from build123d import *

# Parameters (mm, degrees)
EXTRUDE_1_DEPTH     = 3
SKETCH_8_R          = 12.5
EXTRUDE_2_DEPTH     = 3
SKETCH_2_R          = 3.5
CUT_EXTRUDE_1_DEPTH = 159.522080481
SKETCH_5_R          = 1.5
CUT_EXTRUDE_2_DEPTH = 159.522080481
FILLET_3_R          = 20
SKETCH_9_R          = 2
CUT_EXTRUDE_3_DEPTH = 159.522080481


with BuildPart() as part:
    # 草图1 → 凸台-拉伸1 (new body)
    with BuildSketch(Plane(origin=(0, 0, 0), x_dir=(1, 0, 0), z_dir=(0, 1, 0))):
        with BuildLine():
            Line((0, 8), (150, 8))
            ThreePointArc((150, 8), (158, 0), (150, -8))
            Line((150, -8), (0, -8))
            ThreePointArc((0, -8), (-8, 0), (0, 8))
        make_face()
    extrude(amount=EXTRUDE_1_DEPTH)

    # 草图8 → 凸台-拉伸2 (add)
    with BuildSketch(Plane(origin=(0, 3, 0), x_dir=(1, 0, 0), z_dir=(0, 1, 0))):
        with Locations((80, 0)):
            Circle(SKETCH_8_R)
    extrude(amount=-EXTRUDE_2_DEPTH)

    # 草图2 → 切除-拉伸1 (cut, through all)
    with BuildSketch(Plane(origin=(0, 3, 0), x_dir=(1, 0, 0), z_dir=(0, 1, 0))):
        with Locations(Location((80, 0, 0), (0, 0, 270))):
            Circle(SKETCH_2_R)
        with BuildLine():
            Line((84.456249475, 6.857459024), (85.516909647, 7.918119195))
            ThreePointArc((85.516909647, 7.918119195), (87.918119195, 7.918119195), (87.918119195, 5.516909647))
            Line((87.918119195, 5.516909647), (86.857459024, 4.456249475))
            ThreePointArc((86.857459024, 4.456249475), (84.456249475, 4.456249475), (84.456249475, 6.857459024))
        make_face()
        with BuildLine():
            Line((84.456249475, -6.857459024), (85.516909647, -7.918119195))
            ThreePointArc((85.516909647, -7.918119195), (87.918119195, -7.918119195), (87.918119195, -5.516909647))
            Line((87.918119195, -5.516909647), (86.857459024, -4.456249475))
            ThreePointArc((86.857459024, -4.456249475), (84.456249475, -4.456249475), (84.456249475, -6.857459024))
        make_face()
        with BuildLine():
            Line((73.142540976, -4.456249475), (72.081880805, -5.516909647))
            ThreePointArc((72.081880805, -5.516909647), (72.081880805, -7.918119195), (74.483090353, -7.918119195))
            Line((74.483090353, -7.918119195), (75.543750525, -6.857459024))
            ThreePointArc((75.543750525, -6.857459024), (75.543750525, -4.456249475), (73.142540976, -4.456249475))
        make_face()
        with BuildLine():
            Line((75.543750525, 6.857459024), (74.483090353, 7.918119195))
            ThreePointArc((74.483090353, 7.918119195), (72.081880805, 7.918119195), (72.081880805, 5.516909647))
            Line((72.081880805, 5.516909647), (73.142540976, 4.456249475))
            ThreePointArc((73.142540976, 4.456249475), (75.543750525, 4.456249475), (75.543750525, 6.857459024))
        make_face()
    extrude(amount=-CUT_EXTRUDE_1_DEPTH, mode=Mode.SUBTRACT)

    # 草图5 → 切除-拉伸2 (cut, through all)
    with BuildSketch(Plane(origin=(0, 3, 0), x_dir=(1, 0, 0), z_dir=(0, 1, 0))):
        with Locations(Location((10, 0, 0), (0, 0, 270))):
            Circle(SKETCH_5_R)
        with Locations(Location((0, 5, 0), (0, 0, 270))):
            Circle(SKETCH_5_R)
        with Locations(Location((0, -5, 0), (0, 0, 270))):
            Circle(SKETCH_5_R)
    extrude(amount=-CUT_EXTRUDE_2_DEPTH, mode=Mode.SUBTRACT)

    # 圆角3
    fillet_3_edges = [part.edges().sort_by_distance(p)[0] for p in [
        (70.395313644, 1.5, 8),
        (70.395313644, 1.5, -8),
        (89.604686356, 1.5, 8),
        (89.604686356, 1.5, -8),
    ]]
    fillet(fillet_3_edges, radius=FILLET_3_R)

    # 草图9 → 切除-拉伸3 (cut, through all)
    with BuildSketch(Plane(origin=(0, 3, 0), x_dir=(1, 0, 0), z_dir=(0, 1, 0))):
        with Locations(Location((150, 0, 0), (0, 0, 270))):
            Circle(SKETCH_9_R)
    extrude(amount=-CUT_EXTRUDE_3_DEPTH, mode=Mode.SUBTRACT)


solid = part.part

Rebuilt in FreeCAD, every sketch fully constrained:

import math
import FreeCAD as App
import Part
import Sketcher

V = App.Vector
Q = App.Units.Quantity


def edges_at(feature, points):
    """Names of the edges that pass closest to the given points."""
    edges = feature.Shape.Edges
    near = lambda p: min(range(len(edges)), key=lambda i: edges[i].distToShape(Part.Vertex(*p))[0])
    return sorted({f"Edge{near(p) + 1}" for p in points})

doc = App.newDocument("Part")
body = doc.addObject("PartDesign::Body", "Body")

sketch1 = body.newObject("Sketcher::SketchObject", "Sketch")
sketch1.AttachmentSupport = (doc.getObject("XZ_Plane"), [""])
sketch1.MapMode = "FlatFace"
sketch1.addGeometry([
    Part.LineSegment(V(150, -8, 0), V(0, -8, 0)),
    Part.ArcOfCircle(Part.Circle(V(0, 0, 0), V(0, 0, 1), 8), math.radians(90), math.radians(270)),
    Part.LineSegment(V(0, 8, 0), V(150, 8, 0)),
    Part.ArcOfCircle(Part.Circle(V(150, 0, 0), V(0, 0, 1), 8), math.radians(-90), math.radians(90)),
], False)
sketch1.addConstraint([
    Sketcher.Constraint("Tangent", 0, 2, 1, 2),
    Sketcher.Constraint("Tangent", 1, 1, 2, 1),
    Sketcher.Constraint("Tangent", 2, 2, 3, 2),
    Sketcher.Constraint("Tangent", 3, 1, 0, 1),
    Sketcher.Constraint("Horizontal", 0),
    Sketcher.Constraint("Horizontal", 2),
    Sketcher.Constraint("Coincident", 1, 3, -1, 1),
    Sketcher.Constraint("Radius", 1, Q("8 mm")),
    Sketcher.Constraint("DistanceX", 0, 2, 0, 1, Q("150 mm")),
])
pad1 = body.newObject("PartDesign::Pad", "Pad")
pad1.Profile = sketch1
pad1.Length = 3
pad1.Reversed = True

sketch2 = body.newObject("Sketcher::SketchObject", "Sketch001")
sketch2.AttachmentSupport = (doc.getObject("XZ_Plane"), [""])
sketch2.MapMode = "FlatFace"
sketch2.AttachmentOffset = App.Placement(V(0, 0, -3), App.Rotation())
sketch2.addGeometry(Part.Circle(V(80, 0, 0), V(0, 0, 1), 12), False)
sketch2.addConstraint([
    Sketcher.Constraint("PointOnObject", 0, 3, -1),
    Sketcher.Constraint("Diameter", 0, Q("25 mm")),
    Sketcher.Constraint("DistanceX", -1, 1, 0, 3, Q("80 mm")),
])
pad2 = body.newObject("PartDesign::Pad", "Pad001")
pad2.Profile = sketch2
pad2.Length = 3

sketch3 = body.newObject("Sketcher::SketchObject", "Sketch002")
sketch3.AttachmentSupport = (doc.getObject("XZ_Plane"), [""])
sketch3.MapMode = "FlatFace"
sketch3.AttachmentOffset = App.Placement(V(0, 0, -3), App.Rotation())
sketch3.addGeometry([
    Part.Circle(V(80, 0, 0), V(0, 0, 1), 3.5),
    Part.LineSegment(V(85.5, -7.9, 0), V(84.5, -6.9, 0)),
    Part.ArcOfCircle(Part.Circle(V(85.7, -5.7, 0), V(0, 0, 1), 1.7), math.radians(45), math.radians(225)),
    Part.LineSegment(V(86.9, -4.5, 0), V(87.9, -5.5, 0)),
    Part.ArcOfCircle(Part.Circle(V(86.7, -6.7, 0), V(0, 0, 1), 1.7), math.radians(-135), math.radians(45)),
    Part.LineSegment(V(84.5, 6.9, 0), V(85.5, 7.9, 0)),
    Part.ArcOfCircle(Part.Circle(V(86.7, 6.7, 0), V(0, 0, 1), 1.7), math.radians(-45), math.radians(135)),
    Part.LineSegment(V(87.9, 5.5, 0), V(86.9, 4.5, 0)),
    Part.ArcOfCircle(Part.Circle(V(85.7, 5.7, 0), V(0, 0, 1), 1.7), math.radians(135), math.radians(315)),
    Part.LineSegment(V(73.1, 4.5, 0), V(72.1, 5.5, 0)),
    Part.ArcOfCircle(Part.Circle(V(73.3, 6.7, 0), V(0, 0, 1), 1.7), math.radians(45), math.radians(225)),
    Part.LineSegment(V(74.5, 7.9, 0), V(75.5, 6.9, 0)),
    Part.ArcOfCircle(Part.Circle(V(74.3, 5.7, 0), V(0, 0, 1), 1.7), math.radians(-135), math.radians(45)),
    Part.LineSegment(V(75.5, -6.9, 0), V(74.5, -7.9, 0)),
    Part.ArcOfCircle(Part.Circle(V(73.3, -6.7, 0), V(0, 0, 1), 1.7), math.radians(135), math.radians(315)),
    Part.LineSegment(V(72.1, -5.5, 0), V(73.1, -4.5, 0)),
    Part.ArcOfCircle(Part.Circle(V(74.3, -5.7, 0), V(0, 0, 1), 1.7), math.radians(-45), math.radians(135)),
], False)
sketch3.addConstraint([
    Sketcher.Constraint("Tangent", 1, 2, 2, 2),
    Sketcher.Constraint("Tangent", 2, 1, 3, 1),
    Sketcher.Constraint("Tangent", 3, 2, 4, 2),
    Sketcher.Constraint("Tangent", 4, 1, 1, 1),
    Sketcher.Constraint("Tangent", 5, 2, 6, 2),
    Sketcher.Constraint("Tangent", 6, 1, 7, 1),
    Sketcher.Constraint("Tangent", 7, 2, 8, 2),
    Sketcher.Constraint("Tangent", 8, 1, 5, 1),
    Sketcher.Constraint("Tangent", 9, 2, 10, 2),
    Sketcher.Constraint("Tangent", 10, 1, 11, 1),
    Sketcher.Constraint("Tangent", 11, 2, 12, 2),
    Sketcher.Constraint("Tangent", 12, 1, 9, 1),
    Sketcher.Constraint("Tangent", 13, 2, 14, 2),
    Sketcher.Constraint("Tangent", 14, 1, 15, 1),
    Sketcher.Constraint("Tangent", 15, 2, 16, 2),
    Sketcher.Constraint("Tangent", 16, 1, 13, 1),
    Sketcher.Constraint("Equal", 2, 4),
    Sketcher.Constraint("Equal", 4, 6),
    Sketcher.Constraint("Equal", 6, 8),
    Sketcher.Constraint("Equal", 8, 10),
    Sketcher.Constraint("Equal", 10, 12),
    Sketcher.Constraint("Equal", 12, 14),
    Sketcher.Constraint("Equal", 14, 16),
    Sketcher.Constraint("Symmetric", 4, 3, 6, 3, -1),
    Sketcher.Constraint("Symmetric", 2, 3, 8, 3, -1),
    Sketcher.Constraint("Symmetric", 10, 3, 14, 3, -1),
    Sketcher.Constraint("Symmetric", 12, 3, 16, 3, -1),
    Sketcher.Constraint("PointOnObject", 0, 3, -1),
    Sketcher.Constraint("Perpendicular", 3, 5),
    Sketcher.Constraint("Perpendicular", 7, 9),
    Sketcher.Constraint("Horizontal", 6, 3, 10, 3),
    Sketcher.Constraint("Horizontal", 8, 3, 12, 3),
    Sketcher.Constraint("Diameter", 0, Q("7 mm")),
    Sketcher.Constraint("DistanceX", -1, 1, 0, 3, Q("80 mm")),
    Sketcher.Constraint("Distance", 1, Q("1.5 mm")),
    Sketcher.Constraint("Radius", 2, Q("1.697912 mm")),
    Sketcher.Constraint("DistanceX", -1, 1, 1, 2, Q("84.456249 mm")),
    Sketcher.Constraint("DistanceY", 1, 2, -1, 1, Q("6.857459 mm")),
    Sketcher.Constraint("DistanceX", -1, 1, 9, 2, Q("72.081881 mm")),
])
pocket1 = body.newObject("PartDesign::Pocket", "Pocket")
pocket1.Profile = sketch3
pocket1.Type = "ThroughAll"
pocket1.Reversed = True

sketch4 = body.newObject("Sketcher::SketchObject", "Sketch003")
sketch4.AttachmentSupport = (doc.getObject("XZ_Plane"), [""])
sketch4.MapMode = "FlatFace"
sketch4.AttachmentOffset = App.Placement(V(0, 0, -3), App.Rotation())
sketch4.addGeometry([
    Part.Circle(V(10, 0, 0), V(0, 0, 1), 1.5),
    Part.Circle(V(0, -5, 0), V(0, 0, 1), 1.5),
    Part.Circle(V(0, 5, 0), V(0, 0, 1), 1.5),
], False)
sketch4.addConstraint([
    Sketcher.Constraint("Equal", 0, 1),
    Sketcher.Constraint("Equal", 1, 2),
    Sketcher.Constraint("Symmetric", 1, 3, 2, 3, -1, 1),
    Sketcher.Constraint("PointOnObject", 0, 3, -1),
    Sketcher.Constraint("PointOnObject", 1, 3, -2),
    Sketcher.Constraint("Diameter", 0, Q("3 mm")),
    Sketcher.Constraint("DistanceX", -1, 1, 0, 3, Q("10 mm")),
    Sketcher.Constraint("DistanceY", 1, 3, -1, 1, Q("5 mm")),
])
pocket2 = body.newObject("PartDesign::Pocket", "Pocket001")
pocket2.Profile = sketch4
pocket2.Type = "ThroughAll"
pocket2.Reversed = True
doc.recompute()

fillet = body.newObject("PartDesign::Fillet", "Fillet")
fillet.Base = (pocket2, edges_at(pocket2, [
    (70.395, 1.5, 8),
    (70.395, 1.5, -8),
    (89.605, 1.5, 8),
    (89.605, 1.5, -8),
]))
fillet.Radius = 20

sketch5 = body.newObject("Sketcher::SketchObject", "Sketch004")
sketch5.AttachmentSupport = (doc.getObject("XZ_Plane"), [""])
sketch5.MapMode = "FlatFace"
sketch5.AttachmentOffset = App.Placement(V(0, 0, -3), App.Rotation())
sketch5.addGeometry(Part.Circle(V(150, 0, 0), V(0, 0, 1), 2), False)
sketch5.addConstraint([
    Sketcher.Constraint("PointOnObject", 0, 3, -1),
    Sketcher.Constraint("Diameter", 0, Q("4 mm")),
    Sketcher.Constraint("DistanceX", -1, 1, 0, 3, Q("150 mm")),
])
pocket3 = body.newObject("PartDesign::Pocket", "Pocket002")
pocket3.Profile = sketch5
pocket3.Type = "ThroughAll"
pocket3.Reversed = True

doc.recompute()
